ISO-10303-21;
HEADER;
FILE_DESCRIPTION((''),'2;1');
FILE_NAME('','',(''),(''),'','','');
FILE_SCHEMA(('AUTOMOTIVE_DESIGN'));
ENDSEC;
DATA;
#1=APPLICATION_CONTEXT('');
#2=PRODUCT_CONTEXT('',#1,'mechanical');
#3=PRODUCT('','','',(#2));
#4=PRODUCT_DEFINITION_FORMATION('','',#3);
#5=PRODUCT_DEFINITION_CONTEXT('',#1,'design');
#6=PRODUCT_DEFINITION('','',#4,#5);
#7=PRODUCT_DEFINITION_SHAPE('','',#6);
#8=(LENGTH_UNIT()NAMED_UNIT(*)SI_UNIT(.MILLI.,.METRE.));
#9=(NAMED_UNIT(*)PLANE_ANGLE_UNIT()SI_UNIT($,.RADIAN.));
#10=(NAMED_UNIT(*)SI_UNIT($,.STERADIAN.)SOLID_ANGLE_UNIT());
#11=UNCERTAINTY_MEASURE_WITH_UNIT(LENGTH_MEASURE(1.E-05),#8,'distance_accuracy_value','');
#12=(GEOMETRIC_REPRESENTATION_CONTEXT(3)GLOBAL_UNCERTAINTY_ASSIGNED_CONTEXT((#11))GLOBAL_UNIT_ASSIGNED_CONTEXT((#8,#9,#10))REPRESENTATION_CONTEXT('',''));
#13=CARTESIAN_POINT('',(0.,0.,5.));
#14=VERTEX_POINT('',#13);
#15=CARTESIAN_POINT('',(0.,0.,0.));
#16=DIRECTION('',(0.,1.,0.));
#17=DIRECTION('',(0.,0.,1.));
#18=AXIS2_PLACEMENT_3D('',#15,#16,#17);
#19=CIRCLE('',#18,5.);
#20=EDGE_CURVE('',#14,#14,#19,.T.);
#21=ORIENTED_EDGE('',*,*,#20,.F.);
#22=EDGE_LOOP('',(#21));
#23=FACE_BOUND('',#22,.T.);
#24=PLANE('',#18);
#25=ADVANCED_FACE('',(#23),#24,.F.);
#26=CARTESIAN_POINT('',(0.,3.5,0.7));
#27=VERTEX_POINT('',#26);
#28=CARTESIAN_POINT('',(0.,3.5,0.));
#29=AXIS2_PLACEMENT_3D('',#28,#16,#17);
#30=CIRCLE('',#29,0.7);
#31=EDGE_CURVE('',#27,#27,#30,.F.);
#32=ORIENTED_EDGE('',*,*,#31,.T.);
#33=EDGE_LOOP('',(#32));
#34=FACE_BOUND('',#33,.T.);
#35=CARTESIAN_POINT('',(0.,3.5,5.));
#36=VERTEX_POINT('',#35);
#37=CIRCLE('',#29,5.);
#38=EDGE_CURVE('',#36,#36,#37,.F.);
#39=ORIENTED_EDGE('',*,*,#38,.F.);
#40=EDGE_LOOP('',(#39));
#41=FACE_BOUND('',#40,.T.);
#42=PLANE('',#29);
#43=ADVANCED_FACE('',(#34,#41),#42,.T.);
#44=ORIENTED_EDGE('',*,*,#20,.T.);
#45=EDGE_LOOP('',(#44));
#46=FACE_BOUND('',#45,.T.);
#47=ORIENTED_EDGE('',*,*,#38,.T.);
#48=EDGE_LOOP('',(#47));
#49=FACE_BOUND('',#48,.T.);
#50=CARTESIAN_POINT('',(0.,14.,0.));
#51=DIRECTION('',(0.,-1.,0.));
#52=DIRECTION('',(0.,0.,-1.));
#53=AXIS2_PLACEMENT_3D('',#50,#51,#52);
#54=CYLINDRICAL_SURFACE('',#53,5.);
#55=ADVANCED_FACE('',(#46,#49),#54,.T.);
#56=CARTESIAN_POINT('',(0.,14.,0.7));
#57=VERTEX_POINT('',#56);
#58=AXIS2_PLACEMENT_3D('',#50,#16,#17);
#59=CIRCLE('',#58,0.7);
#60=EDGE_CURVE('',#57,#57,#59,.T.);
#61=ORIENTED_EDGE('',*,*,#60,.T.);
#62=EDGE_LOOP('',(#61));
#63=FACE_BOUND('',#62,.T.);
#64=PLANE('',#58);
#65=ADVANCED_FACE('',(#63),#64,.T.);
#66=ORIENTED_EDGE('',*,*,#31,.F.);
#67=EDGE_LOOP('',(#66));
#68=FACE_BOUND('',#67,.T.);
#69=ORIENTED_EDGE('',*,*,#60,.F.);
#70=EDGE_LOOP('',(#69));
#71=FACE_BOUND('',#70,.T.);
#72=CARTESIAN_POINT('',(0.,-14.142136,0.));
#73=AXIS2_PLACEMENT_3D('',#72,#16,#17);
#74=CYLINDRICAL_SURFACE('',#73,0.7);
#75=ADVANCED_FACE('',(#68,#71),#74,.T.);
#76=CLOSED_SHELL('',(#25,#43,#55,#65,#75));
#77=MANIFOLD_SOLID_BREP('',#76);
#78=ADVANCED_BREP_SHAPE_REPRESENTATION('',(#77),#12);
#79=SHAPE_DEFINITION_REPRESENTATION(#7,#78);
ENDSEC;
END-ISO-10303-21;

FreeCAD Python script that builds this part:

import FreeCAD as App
import Part
import Sketcher

V = App.Vector
Q = App.Units.Quantity

doc = App.newDocument("Part")
body = doc.addObject("PartDesign::Body", "Body")

# Sketch on XZ plane
sketch1 = body.newObject("Sketcher::SketchObject", "Sketch")
sketch1.AttachmentSupport = (doc.getObject("XZ_Plane"), [""])
sketch1.MapMode = "FlatFace"
sketch1.addGeometry(Part.Circle(V(0, 0, 0), V(0, 0, 1), 5), False)
sketch1.addConstraint(Sketcher.Constraint("Coincident", 0, 3, -1, 1))
sketch1.addConstraint(Sketcher.Constraint("Diameter", 0, Q("10 mm")))
pad1 = body.newObject("PartDesign::Pad", "Pad")
pad1.Profile = sketch1
pad1.Length = 14
pad1.Reversed = True

# Sketch on XZ plane
sketch2 = body.newObject("Sketcher::SketchObject", "Sketch001")
sketch2.AttachmentSupport = (doc.getObject("XZ_Plane"), [""])
sketch2.MapMode = "FlatFace"
sketch2.AttachmentOffset = App.Placement(V(0, 0, -3.5), App.Rotation())
sketch2.addGeometry(Part.Circle(V(0, 0, 0), V(0, 0, 1), 5), False)
sketch2.addGeometry(Part.Circle(V(0, 0, 0), V(0, 0, 1), 0.7), False)
sketch2.addConstraint(Sketcher.Constraint("Coincident", 0, 3, -1, 1))
sketch2.addConstraint(Sketcher.Constraint("Coincident", 1, 3, -1, 1))
sketch2.addConstraint(Sketcher.Constraint("Diameter", 0, Q("10 mm")))
sketch2.addConstraint(Sketcher.Constraint("Diameter", 1, Q("1.4 mm")))
pocket1 = body.newObject("PartDesign::Pocket", "Pocket")
pocket1.Profile = sketch2
pocket1.Length = 10.5

doc.recompute()
